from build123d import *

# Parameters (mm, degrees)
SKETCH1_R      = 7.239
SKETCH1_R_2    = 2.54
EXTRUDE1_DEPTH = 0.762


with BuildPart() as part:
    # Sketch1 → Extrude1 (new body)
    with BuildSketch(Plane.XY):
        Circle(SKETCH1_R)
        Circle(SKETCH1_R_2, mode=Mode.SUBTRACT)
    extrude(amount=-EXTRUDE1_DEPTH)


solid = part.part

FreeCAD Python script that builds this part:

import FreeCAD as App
import Part
import Sketcher
Q = App.Units.Quantity

doc = App.newDocument("Part")
body = doc.addObject("PartDesign::Body", "Body")

sketch1 = doc.addObject("Sketcher::SketchObject", "Sketch")
body.addObject(sketch1)
sketch1.AttachmentSupport = (doc.XY_Plane, [""])
sketch1.MapMode = "FlatFace"
sketch1.addGeometry(Part.Circle(App.Vector(0, 0, 0), App.Vector(0, 0, 1), 7.2), False)
sketch1.addGeometry(Part.Circle(App.Vector(0, 0, 0), App.Vector(0, 0, 1), 2.5), False)
sketch1.addConstraint(Sketcher.Constraint("Coincident", 0, 3, -1, 1))
sketch1.addConstraint(Sketcher.Constraint("Coincident", 1, 3, -1, 1))
sketch1.addConstraint(Sketcher.Constraint("Diameter", 1, Q("0.2 in")))
sketch1.addConstraint(Sketcher.Constraint("Diameter", 0, Q("0.57 in")))
pad1 = doc.addObject("PartDesign::Pad", "Pad")
body.addObject(pad1)
pad1.Profile = sketch1
pad1.Length = Q("0.03 in")
pad1.Reversed = True

doc.recompute()
